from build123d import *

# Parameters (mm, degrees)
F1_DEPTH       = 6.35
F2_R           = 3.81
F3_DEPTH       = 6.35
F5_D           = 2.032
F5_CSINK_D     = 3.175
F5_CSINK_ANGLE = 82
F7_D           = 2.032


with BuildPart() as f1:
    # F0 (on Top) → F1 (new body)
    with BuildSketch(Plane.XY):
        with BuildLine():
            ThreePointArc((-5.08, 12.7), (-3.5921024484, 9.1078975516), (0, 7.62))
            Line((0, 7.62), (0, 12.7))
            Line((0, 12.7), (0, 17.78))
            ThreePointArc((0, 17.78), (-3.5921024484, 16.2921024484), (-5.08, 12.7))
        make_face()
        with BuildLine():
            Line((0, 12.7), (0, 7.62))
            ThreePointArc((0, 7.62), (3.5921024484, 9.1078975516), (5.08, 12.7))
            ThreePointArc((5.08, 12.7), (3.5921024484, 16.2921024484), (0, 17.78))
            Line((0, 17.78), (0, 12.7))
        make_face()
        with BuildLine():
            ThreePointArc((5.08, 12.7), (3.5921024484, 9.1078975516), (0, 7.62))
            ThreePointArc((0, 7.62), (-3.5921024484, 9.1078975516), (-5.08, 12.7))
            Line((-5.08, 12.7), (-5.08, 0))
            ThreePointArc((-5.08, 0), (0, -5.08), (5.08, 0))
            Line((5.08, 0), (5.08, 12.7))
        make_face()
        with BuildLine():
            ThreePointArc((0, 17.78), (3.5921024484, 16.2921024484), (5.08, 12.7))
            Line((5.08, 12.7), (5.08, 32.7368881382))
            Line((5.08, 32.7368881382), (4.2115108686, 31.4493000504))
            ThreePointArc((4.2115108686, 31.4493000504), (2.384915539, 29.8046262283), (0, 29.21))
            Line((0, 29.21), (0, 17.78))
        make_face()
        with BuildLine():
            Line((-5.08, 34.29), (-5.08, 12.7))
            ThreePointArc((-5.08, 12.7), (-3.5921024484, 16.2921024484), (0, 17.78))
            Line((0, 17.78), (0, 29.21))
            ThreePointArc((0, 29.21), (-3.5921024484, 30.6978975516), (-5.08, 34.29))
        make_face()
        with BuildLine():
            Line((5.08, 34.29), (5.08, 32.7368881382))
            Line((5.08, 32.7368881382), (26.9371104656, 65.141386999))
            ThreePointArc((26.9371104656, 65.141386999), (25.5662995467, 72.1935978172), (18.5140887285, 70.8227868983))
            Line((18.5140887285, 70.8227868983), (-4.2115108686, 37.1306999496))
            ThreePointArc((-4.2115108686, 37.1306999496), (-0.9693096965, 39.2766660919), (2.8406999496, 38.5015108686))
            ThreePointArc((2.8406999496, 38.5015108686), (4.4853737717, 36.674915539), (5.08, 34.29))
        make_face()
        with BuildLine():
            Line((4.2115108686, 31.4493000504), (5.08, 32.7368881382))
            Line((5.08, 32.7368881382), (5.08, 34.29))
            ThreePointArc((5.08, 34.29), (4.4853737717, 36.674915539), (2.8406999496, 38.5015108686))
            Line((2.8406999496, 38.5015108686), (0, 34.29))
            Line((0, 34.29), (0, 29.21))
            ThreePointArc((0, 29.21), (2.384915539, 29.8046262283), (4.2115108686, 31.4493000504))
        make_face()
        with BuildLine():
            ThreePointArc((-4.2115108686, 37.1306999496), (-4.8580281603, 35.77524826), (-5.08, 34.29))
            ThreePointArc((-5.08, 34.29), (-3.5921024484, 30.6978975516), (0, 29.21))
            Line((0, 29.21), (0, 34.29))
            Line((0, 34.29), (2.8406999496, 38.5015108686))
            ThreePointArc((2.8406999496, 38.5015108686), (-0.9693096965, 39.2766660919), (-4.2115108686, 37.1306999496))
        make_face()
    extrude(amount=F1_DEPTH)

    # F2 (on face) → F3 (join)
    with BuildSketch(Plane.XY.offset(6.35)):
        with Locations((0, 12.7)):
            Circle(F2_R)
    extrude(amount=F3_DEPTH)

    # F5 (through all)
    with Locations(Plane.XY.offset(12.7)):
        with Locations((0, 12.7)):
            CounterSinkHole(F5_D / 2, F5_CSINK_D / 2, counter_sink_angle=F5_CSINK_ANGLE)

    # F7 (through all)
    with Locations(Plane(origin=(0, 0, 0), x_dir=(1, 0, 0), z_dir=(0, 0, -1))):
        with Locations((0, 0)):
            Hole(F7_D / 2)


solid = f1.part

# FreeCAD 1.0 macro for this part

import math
import FreeCAD as App
import Part
import Sketcher

V = App.Vector
Q = App.Units.Quantity

doc = App.newDocument("Part")
params = doc.addObject("Spreadsheet::Sheet", "Params")
for row, (alias, value) in enumerate([
    ("sketch1_radius", "0.2 in"),
    ("sketch1_length", "1.6 in"),
    ("sketch1_height", "1.35 in"),
    ("pad1_length", "0.25 in"),
    ("sketch2_diameter", "0.3 in"),
    ("pad2_length", "0.25 in"),
    ("sketch3_diameter", "0.08 in"),
    ("hole_diameter", "0.08 in"),
    ("hole_csink_diameter", "0.125 in"),
    ("sketch4_diameter", "0.08 in"),
    ("hole2_diameter", "0.08 in"),
], start=1):
    params.set(f"A{row}", alias)
    params.set(f"B{row}", "=" + value)
    params.setAlias(f"B{row}", alias)

body = doc.addObject("PartDesign::Body", "Body")

# Sketch on XY plane
sketch1 = body.newObject("Sketcher::SketchObject", "Sketch")
sketch1.AttachmentSupport = (doc.getObject("XY_Plane"), [""])
sketch1.MapMode = "FlatFace"
sketch1.addGeometry(Part.ArcOfCircle(Part.Circle(V(0, 0, 0), V(0, 0, 1), 5.1), math.radians(180), math.radians(360)), False)
sketch1.addGeometry(Part.LineSegment(V(5.1, 0, 0), V(5.1, 32.7, 0)), False)
sketch1.addGeometry(Part.LineSegment(V(5.1, 32.7, 0), V(26.9, 65.1, 0)), False)
sketch1.addGeometry(Part.ArcOfCircle(Part.Circle(V(22.7, 68, 0), V(0, 0, 1), 5.1), math.radians(-34), math.radians(146)), False)
sketch1.addGeometry(Part.LineSegment(V(18.5, 70.8, 0), V(-4.2, 37.1, 0)), False)
sketch1.addGeometry(Part.ArcOfCircle(Part.Circle(V(0, 34.3, 0), V(0, 0, 1), 5.1), math.radians(146), math.radians(180)), False)
sketch1.addGeometry(Part.LineSegment(V(-5.1, 34.3, 0), V(-5.1, 0, 0)), False)
sketch1.addConstraint(Sketcher.Constraint("Tangent", 0, 2, 1, 1))
sketch1.addConstraint(Sketcher.Constraint("Coincident", 1, 2, 2, 1))
sketch1.addConstraint(Sketcher.Constraint("Tangent", 2, 2, 3, 1))
sketch1.addConstraint(Sketcher.Constraint("Tangent", 3, 2, 4, 1))
sketch1.addConstraint(Sketcher.Constraint("Tangent", 4, 2, 5, 1))
sketch1.addConstraint(Sketcher.Constraint("Tangent", 5, 2, 6, 1))
sketch1.addConstraint(Sketcher.Constraint("Tangent", 6, 2, 0, 1))
sketch1.addConstraint(Sketcher.Constraint("Vertical", 1))
sketch1.addConstraint(Sketcher.Constraint("Vertical", 6))
sketch1.addConstraint(Sketcher.Constraint("Coincident", 0, 3, -1, 1))
sketch1.addConstraint(Sketcher.Constraint("Equal", 0, 3))
sketch1.addConstraint(Sketcher.Constraint("Equal", 3, 5))
sketch1.addConstraint(Sketcher.Constraint("Parallel", 2, 4))
sketch1.addConstraint(Sketcher.Constraint("Radius", 0, Q("0.2 in")))
sketch1.addConstraint(Sketcher.Constraint("Angle", 2, Q("56 deg")))
sketch1.addConstraint(Sketcher.Constraint("Distance", 4, Q("1.6 in")))
sketch1.addConstraint(Sketcher.Constraint("DistanceY", 6, 2, 6, 1, Q("1.35 in")))
sketch1.setExpression("Constraints[13]", "Params.sketch1_radius")
sketch1.setExpression("Constraints[15]", "Params.sketch1_length")
sketch1.setExpression("Constraints[16]", "Params.sketch1_height")
pad1 = body.newObject("PartDesign::Pad", "Pad")
pad1.Profile = sketch1
pad1.setExpression("Length", "Params.pad1_length")

# Sketch on XY plane
sketch2 = body.newObject("Sketcher::SketchObject", "Sketch001")
sketch2.AttachmentSupport = (doc.getObject("XY_Plane"), [""])
sketch2.MapMode = "FlatFace"
sketch2.AttachmentOffset = App.Placement(V(0, 0, 0.25 * 25.4), App.Rotation())
sketch2.addGeometry(Part.Circle(V(0, 12.7, 0), V(0, 0, 1), 3.8), False)
sketch2.addConstraint(Sketcher.Constraint("PointOnObject", 0, 3, -2))
sketch2.addConstraint(Sketcher.Constraint("Diameter", 0, Q("0.3 in")))
sketch2.addConstraint(Sketcher.Constraint("DistanceY", -1, 1, 0, 3, Q("0.5 in")))
sketch2.setExpression("Constraints[1]", "Params.sketch2_diameter")
pad2 = body.newObject("PartDesign::Pad", "Pad001")
pad2.Profile = sketch2
pad2.setExpression("Length", "Params.pad2_length")

# Sketch on XY plane
sketch3 = body.newObject("Sketcher::SketchObject", "Sketch002")
sketch3.AttachmentSupport = (doc.getObject("XY_Plane"), [""])
sketch3.MapMode = "FlatFace"
sketch3.AttachmentOffset = App.Placement(V(0, 0, 0.5 * 25.4), App.Rotation())
sketch3.addGeometry(Part.Circle(V(0, 12.7, 0), V(0, 0, 1), 1), False)
sketch3.addConstraint(Sketcher.Constraint("PointOnObject", 0, 3, -2))
sketch3.addConstraint(Sketcher.Constraint("Diameter", 0, Q("0.08 in")))
sketch3.addConstraint(Sketcher.Constraint("DistanceY", -1, 1, 0, 3, Q("0.5 in")))
sketch3.setExpression("Constraints[1]", "Params.sketch3_diameter")
doc.recompute()
hole = body.newObject("PartDesign::Hole", "Hole")
hole.Profile = sketch3
hole.ThreadType = "None"
hole.setExpression("Diameter", "Params.hole_diameter")
hole.DepthType = "ThroughAll"
hole.HoleCutType = "Countersink"
hole.setExpression("HoleCutDiameter", "Params.hole_csink_diameter")
hole.HoleCutCountersinkAngle = 82

# Sketch on XY plane
sketch4 = body.newObject("Sketcher::SketchObject", "Sketch003")
sketch4.AttachmentSupport = (doc.getObject("XY_Plane"), [""])
sketch4.MapMode = "FlatFace"
sketch4.addGeometry(Part.Circle(V(0, 0, 0), V(0, 0, 1), 1), False)
sketch4.addConstraint(Sketcher.Constraint("Coincident", 0, 3, -1, 1))
sketch4.addConstraint(Sketcher.Constraint("Diameter", 0, Q("0.08 in")))
sketch4.setExpression("Constraints[1]", "Params.sketch4_diameter")
doc.recompute()
hole2 = body.newObject("PartDesign::Hole", "Hole001")
hole2.Profile = sketch4
hole2.ThreadType = "None"
hole2.setExpression("Diameter", "Params.hole2_diameter")
hole2.DepthType = "ThroughAll"
hole2.Reversed = True

doc.recompute()
